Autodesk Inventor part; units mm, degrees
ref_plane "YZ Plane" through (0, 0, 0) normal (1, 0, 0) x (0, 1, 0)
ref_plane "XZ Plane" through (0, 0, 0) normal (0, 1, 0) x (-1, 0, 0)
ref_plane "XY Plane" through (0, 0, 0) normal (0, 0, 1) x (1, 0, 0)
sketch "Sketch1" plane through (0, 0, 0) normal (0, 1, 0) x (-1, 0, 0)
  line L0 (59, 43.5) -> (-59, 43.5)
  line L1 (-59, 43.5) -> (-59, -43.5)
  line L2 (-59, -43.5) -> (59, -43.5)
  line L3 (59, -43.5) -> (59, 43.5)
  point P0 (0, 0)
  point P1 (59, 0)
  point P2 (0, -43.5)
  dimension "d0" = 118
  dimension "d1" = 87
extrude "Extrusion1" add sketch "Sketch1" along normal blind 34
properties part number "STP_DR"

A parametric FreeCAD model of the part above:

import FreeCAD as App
import Part
import Sketcher
from FreeCAD import Vector
Q = App.Units.Quantity

doc = App.newDocument("Part")
body = doc.addObject("PartDesign::Body", "Body")

# Sketch on XZ plane
sketch1 = doc.addObject("Sketcher::SketchObject", "Sketch")
body.addObject(sketch1)
sketch1.AttachmentSupport = (doc.XZ_Plane, [""])
sketch1.MapMode = "FlatFace"
sketch1.addGeometry([
    Part.LineSegment(Vector(-59, -44, 0), Vector(-59, 44, 0)),
    Part.LineSegment(Vector(-59, 44, 0), Vector(59, 44, 0)),
    Part.LineSegment(Vector(59, 44, 0), Vector(59, -44, 0)),
    Part.LineSegment(Vector(59, -44, 0), Vector(-59, -44, 0)),
], False)
sketch1.addConstraint([
    Sketcher.Constraint("Coincident", 0, 2, 1, 1),
    Sketcher.Constraint("Coincident", 1, 2, 2, 1),
    Sketcher.Constraint("Coincident", 2, 2, 3, 1),
    Sketcher.Constraint("Coincident", 3, 2, 0, 1),
    Sketcher.Constraint("Vertical", 0),
    Sketcher.Constraint("Horizontal", 1),
    Sketcher.Constraint("Vertical", 2),
    Sketcher.Constraint("Horizontal", 3),
    Sketcher.Constraint("Symmetric", 0, 2, 2, 2, -1, 1),
    Sketcher.Constraint("DistanceX", 1, 1, 1, 2, Q("118 mm")),
    Sketcher.Constraint("DistanceY", 0, 1, 0, 2, Q("87 mm")),
])
pad1 = doc.addObject("PartDesign::Pad", "Pad")
body.addObject(pad1)
pad1.Profile = sketch1
pad1.Length = 34
pad1.Reversed = True

doc.recompute()
